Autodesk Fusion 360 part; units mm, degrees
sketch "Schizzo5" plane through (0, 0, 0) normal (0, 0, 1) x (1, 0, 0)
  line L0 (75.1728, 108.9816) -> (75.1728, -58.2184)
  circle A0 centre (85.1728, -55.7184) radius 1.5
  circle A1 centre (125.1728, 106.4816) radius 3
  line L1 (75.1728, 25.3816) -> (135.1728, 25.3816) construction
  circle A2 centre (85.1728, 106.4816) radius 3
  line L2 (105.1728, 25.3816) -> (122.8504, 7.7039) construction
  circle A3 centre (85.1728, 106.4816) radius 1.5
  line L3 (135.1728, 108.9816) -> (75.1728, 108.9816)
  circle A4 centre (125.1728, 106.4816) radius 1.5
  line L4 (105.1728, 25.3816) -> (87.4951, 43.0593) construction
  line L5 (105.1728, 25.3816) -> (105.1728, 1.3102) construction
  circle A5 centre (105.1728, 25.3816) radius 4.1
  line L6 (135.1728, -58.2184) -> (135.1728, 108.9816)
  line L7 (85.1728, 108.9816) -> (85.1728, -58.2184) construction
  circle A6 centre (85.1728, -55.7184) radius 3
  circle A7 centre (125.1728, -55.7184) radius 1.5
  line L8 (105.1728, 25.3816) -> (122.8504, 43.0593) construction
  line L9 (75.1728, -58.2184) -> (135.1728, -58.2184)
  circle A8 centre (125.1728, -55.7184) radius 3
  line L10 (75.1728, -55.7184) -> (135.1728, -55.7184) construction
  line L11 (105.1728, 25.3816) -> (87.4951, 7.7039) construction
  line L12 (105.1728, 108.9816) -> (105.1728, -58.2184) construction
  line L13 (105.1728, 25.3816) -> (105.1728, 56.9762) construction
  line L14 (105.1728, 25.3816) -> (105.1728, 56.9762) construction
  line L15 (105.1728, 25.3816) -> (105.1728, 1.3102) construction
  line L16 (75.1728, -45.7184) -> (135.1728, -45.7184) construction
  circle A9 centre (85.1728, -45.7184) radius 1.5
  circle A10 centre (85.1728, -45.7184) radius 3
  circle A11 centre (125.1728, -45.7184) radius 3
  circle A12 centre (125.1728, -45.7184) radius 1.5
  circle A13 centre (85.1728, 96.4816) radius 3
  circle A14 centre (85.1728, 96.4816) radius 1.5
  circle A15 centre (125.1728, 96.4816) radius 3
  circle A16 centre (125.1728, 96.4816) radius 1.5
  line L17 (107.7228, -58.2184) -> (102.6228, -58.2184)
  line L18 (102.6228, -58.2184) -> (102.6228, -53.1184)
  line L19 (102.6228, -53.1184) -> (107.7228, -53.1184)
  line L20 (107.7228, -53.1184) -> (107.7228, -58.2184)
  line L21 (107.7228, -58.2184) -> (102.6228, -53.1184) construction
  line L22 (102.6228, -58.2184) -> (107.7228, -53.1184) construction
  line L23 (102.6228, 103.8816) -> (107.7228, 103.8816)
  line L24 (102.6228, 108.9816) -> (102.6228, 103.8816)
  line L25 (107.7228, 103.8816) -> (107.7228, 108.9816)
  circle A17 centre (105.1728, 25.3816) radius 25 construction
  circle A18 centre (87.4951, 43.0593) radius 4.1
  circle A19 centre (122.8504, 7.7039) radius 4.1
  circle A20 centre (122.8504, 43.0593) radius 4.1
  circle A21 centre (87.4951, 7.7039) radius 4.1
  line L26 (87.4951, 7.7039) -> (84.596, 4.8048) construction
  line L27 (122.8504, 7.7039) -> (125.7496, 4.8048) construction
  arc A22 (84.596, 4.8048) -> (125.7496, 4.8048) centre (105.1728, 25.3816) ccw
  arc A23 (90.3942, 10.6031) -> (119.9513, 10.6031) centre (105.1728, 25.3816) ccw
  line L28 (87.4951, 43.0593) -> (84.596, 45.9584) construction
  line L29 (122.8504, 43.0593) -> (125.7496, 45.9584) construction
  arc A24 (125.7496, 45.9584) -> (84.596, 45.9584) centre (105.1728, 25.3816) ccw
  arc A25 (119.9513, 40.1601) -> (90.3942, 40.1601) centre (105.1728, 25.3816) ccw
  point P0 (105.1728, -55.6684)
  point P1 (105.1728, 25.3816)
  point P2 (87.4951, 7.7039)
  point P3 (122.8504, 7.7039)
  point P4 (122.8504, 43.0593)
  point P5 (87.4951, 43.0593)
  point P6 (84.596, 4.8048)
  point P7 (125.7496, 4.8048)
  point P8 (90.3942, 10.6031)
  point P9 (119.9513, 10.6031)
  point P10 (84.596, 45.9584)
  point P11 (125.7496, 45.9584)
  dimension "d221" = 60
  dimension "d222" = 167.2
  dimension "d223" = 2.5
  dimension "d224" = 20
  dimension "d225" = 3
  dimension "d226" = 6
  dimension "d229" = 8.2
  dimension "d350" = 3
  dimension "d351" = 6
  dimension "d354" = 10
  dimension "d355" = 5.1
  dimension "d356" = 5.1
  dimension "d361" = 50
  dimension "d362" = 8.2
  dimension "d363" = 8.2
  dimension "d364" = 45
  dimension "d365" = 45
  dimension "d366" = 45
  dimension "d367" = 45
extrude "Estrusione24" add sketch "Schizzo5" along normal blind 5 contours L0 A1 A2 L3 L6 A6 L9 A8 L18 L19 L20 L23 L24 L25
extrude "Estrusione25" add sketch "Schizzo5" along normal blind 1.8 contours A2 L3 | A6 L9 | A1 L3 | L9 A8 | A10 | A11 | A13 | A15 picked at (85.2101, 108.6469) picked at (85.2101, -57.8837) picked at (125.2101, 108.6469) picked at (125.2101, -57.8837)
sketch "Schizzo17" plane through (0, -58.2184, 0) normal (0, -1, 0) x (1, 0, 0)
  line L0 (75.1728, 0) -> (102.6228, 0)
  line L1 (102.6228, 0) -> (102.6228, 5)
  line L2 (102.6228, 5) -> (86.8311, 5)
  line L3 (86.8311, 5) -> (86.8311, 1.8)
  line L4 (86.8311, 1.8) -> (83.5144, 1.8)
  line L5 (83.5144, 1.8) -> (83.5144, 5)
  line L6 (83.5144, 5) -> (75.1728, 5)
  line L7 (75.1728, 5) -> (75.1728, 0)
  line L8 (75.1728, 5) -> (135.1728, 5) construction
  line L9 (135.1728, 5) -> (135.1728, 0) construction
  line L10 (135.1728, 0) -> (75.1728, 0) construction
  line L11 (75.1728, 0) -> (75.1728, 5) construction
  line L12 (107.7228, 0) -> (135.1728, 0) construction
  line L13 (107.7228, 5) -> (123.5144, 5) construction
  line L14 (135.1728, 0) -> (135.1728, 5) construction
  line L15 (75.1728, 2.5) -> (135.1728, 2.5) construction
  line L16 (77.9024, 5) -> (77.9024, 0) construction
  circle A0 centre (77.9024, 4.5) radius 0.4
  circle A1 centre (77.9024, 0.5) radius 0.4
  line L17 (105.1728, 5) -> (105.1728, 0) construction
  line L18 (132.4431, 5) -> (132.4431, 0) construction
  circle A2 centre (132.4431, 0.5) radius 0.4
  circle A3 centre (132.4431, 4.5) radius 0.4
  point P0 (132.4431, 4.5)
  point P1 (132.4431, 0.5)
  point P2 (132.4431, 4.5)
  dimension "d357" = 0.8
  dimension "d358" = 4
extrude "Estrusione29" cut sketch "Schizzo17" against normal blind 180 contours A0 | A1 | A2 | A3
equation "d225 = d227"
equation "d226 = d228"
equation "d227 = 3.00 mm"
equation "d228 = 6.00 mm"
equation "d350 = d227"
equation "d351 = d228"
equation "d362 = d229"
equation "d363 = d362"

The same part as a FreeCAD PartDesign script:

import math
import FreeCAD as App
import Part
import Sketcher

doc = App.newDocument("Part")
params = doc.addObject("Spreadsheet::Sheet", "Params")
for row, (alias, value) in enumerate([
    ("sketch1_diameter", "6 mm"),
    ("sketch1_diameter2", "8.2 mm"),
    ("sketch1_width", "5.1 mm"),
    ("sketch1_height", "167.2 mm"),
    ("sketch1_radius", "29.1 mm"),
    ("pad1_length", "5 mm"),
    ("sketch2_diameter", "3 mm"),
    ("sketch2_diameter2", "6 mm"),
    ("pad2_length", "1.8 mm"),
    ("sketch3_diameter", "0.8 mm"),
    ("pocket1_length", "180 mm"),
], start=1):
    params.set(f"A{row}", alias)
    params.set(f"B{row}", "=" + value)
    params.setAlias(f"B{row}", alias)

body = doc.addObject("PartDesign::Body", "Body")

sketch1 = body.newObject("Sketcher::SketchObject", "Sketch")
sketch1.AttachmentSupport = (doc.getObject("XY_Plane"), [""])
sketch1.MapMode = "FlatFace"
sketch1.addGeometry(Part.LineSegment(App.Vector(83.5, 109, 0), App.Vector(75.2, 109, 0)), False)
sketch1.addGeometry(Part.LineSegment(App.Vector(75.2, 109, 0), App.Vector(75.2, -58.2, 0)), False)
sketch1.addGeometry(Part.LineSegment(App.Vector(75.2, -58.2, 0), App.Vector(83.5, -58.2, 0)), False)
sketch1.addGeometry(Part.ArcOfCircle(Part.Circle(App.Vector(85.2, -55.7, 0), App.Vector(0, 0, 1), 3), math.radians(-56), math.radians(236)), False)
sketch1.addGeometry(Part.LineSegment(App.Vector(86.8, -58.2, 0), App.Vector(102.6, -58.2, 0)), False)
sketch1.addGeometry(Part.LineSegment(App.Vector(102.6, -58.2, 0), App.Vector(102.6, -53.1, 0)), False)
sketch1.addGeometry(Part.LineSegment(App.Vector(102.6, -53.1, 0), App.Vector(107.7, -53.1, 0)), False)
sketch1.addGeometry(Part.LineSegment(App.Vector(107.7, -53.1, 0), App.Vector(107.7, -58.2, 0)), False)
sketch1.addGeometry(Part.LineSegment(App.Vector(107.7, -58.2, 0), App.Vector(123.5, -58.2, 0)), False)
sketch1.addGeometry(Part.ArcOfCircle(Part.Circle(App.Vector(125.2, -55.7, 0), App.Vector(0, 0, 1), 3), math.radians(-56), math.radians(236)), False)
sketch1.addGeometry(Part.LineSegment(App.Vector(126.8, -58.2, 0), App.Vector(135.2, -58.2, 0)), False)
sketch1.addGeometry(Part.LineSegment(App.Vector(135.2, -58.2, 0), App.Vector(135.2, 109, 0)), False)
sketch1.addGeometry(Part.LineSegment(App.Vector(135.2, 109, 0), App.Vector(126.8, 109, 0)), False)
sketch1.addGeometry(Part.ArcOfCircle(Part.Circle(App.Vector(125.2, 106.5, 0), App.Vector(0, 0, 1), 3), math.radians(124), math.radians(416)), False)
sketch1.addGeometry(Part.LineSegment(App.Vector(123.5, 109, 0), App.Vector(107.7, 109, 0)), False)
sketch1.addGeometry(Part.LineSegment(App.Vector(107.7, 109, 0), App.Vector(107.7, 103.9, 0)), False)
sketch1.addGeometry(Part.LineSegment(App.Vector(107.7, 103.9, 0), App.Vector(102.6, 103.9, 0)), False)
sketch1.addGeometry(Part.LineSegment(App.Vector(102.6, 103.9, 0), App.Vector(102.6, 109, 0)), False)
sketch1.addGeometry(Part.LineSegment(App.Vector(102.6, 109, 0), App.Vector(86.8, 109, 0)), False)
sketch1.addGeometry(Part.ArcOfCircle(Part.Circle(App.Vector(85.2, 106.5, 0), App.Vector(0, 0, 1), 3), math.radians(124), math.radians(416)), False)
sketch1.addGeometry(Part.Circle(App.Vector(85.2, -45.7, 0), App.Vector(0, 0, 1), 3), False)
sketch1.addGeometry(Part.ArcOfCircle(Part.Circle(App.Vector(122.9, 7.7, 0), App.Vector(0, 0, 1), 4.1), math.radians(-45), math.radians(135)), False)
sketch1.addGeometry(Part.ArcOfCircle(Part.Circle(App.Vector(105.2, 25.4, 0), App.Vector(0, 0, 1), 29.1), math.radians(-135), math.radians(-45)), False)
sketch1.addGeometry(Part.ArcOfCircle(Part.Circle(App.Vector(87.5, 7.7, 0), App.Vector(0, 0, 1), 4.1), math.radians(45), math.radians(225)), False)
sketch1.addGeometry(Part.ArcOfCircle(Part.Circle(App.Vector(105.2, 25.4, 0), App.Vector(0, 0, 1), 20.9), math.radians(-135), math.radians(-45)), False)
sketch1.addGeometry(Part.Circle(App.Vector(125.2, -45.7, 0), App.Vector(0, 0, 1), 3), False)
sketch1.addGeometry(Part.ArcOfCircle(Part.Circle(App.Vector(87.5, 43.1, 0), App.Vector(0, 0, 1), 4.1), math.radians(135), math.radians(315)), False)
sketch1.addGeometry(Part.ArcOfCircle(Part.Circle(App.Vector(105.2, 25.4, 0), App.Vector(0, 0, 1), 29.1), math.radians(45), math.radians(135)), False)
sketch1.addGeometry(Part.ArcOfCircle(Part.Circle(App.Vector(122.9, 43.1, 0), App.Vector(0, 0, 1), 4.1), math.radians(-135), math.radians(45)), False)
sketch1.addGeometry(Part.ArcOfCircle(Part.Circle(App.Vector(105.2, 25.4, 0), App.Vector(0, 0, 1), 20.9), math.radians(45), math.radians(135)), False)
sketch1.addGeometry(Part.Circle(App.Vector(85.2, 96.5, 0), App.Vector(0, 0, 1), 3), False)
sketch1.addGeometry(Part.Circle(App.Vector(105.2, 25.4, 0), App.Vector(0, 0, 1), 4.1), False)
sketch1.addGeometry(Part.Circle(App.Vector(125.2, 96.5, 0), App.Vector(0, 0, 1), 3), False)
sketch1.addConstraint(Sketcher.Constraint("Coincident", 0, 2, 1, 1))
sketch1.addConstraint(Sketcher.Constraint("Coincident", 1, 2, 2, 1))
sketch1.addConstraint(Sketcher.Constraint("Coincident", 2, 2, 3, 2))
sketch1.addConstraint(Sketcher.Constraint("Coincident", 3, 1, 4, 1))
sketch1.addConstraint(Sketcher.Constraint("Coincident", 4, 2, 5, 1))
sketch1.addConstraint(Sketcher.Constraint("Coincident", 5, 2, 6, 1))
sketch1.addConstraint(Sketcher.Constraint("Coincident", 6, 2, 7, 1))
sketch1.addConstraint(Sketcher.Constraint("Coincident", 7, 2, 8, 1))
sketch1.addConstraint(Sketcher.Constraint("Coincident", 8, 2, 9, 2))
sketch1.addConstraint(Sketcher.Constraint("Coincident", 9, 1, 10, 1))
sketch1.addConstraint(Sketcher.Constraint("Coincident", 10, 2, 11, 1))
sketch1.addConstraint(Sketcher.Constraint("Coincident", 11, 2, 12, 1))
sketch1.addConstraint(Sketcher.Constraint("Coincident", 12, 2, 13, 2))
sketch1.addConstraint(Sketcher.Constraint("Coincident", 13, 1, 14, 1))
sketch1.addConstraint(Sketcher.Constraint("Coincident", 14, 2, 15, 1))
sketch1.addConstraint(Sketcher.Constraint("Coincident", 15, 2, 16, 1))
sketch1.addConstraint(Sketcher.Constraint("Coincident", 16, 2, 17, 1))
sketch1.addConstraint(Sketcher.Constraint("Coincident", 17, 2, 18, 1))
sketch1.addConstraint(Sketcher.Constraint("Coincident", 18, 2, 19, 2))
sketch1.addConstraint(Sketcher.Constraint("Coincident", 19, 1, 0, 1))
sketch1.addConstraint(Sketcher.Constraint("Tangent", 21, 1, 22, 2))
sketch1.addConstraint(Sketcher.Constraint("Tangent", 22, 1, 23, 2))
sketch1.addConstraint(Sketcher.Constraint("Tangent", 23, 1, 24, 1))
sketch1.addConstraint(Sketcher.Constraint("Tangent", 24, 2, 21, 2))
sketch1.addConstraint(Sketcher.Constraint("Tangent", 26, 1, 27, 2))
sketch1.addConstraint(Sketcher.Constraint("Tangent", 27, 1, 28, 2))
sketch1.addConstraint(Sketcher.Constraint("Tangent", 28, 1, 29, 1))
sketch1.addConstraint(Sketcher.Constraint("Tangent", 29, 2, 26, 2))
sketch1.addConstraint(Sketcher.Constraint("Horizontal", 0))
sketch1.addConstraint(Sketcher.Constraint("Vertical", 1))
sketch1.addConstraint(Sketcher.Constraint("Horizontal", 2))
sketch1.addConstraint(Sketcher.Constraint("Horizontal", 4))
sketch1.addConstraint(Sketcher.Constraint("Vertical", 5))
sketch1.addConstraint(Sketcher.Constraint("Horizontal", 6))
sketch1.addConstraint(Sketcher.Constraint("Vertical", 7))
sketch1.addConstraint(Sketcher.Constraint("Horizontal", 8))
sketch1.addConstraint(Sketcher.Constraint("Horizontal", 10))
sketch1.addConstraint(Sketcher.Constraint("Vertical", 11))
sketch1.addConstraint(Sketcher.Constraint("Horizontal", 12))
sketch1.addConstraint(Sketcher.Constraint("Horizontal", 14))
sketch1.addConstraint(Sketcher.Constraint("Vertical", 15))
sketch1.addConstraint(Sketcher.Constraint("Horizontal", 16))
sketch1.addConstraint(Sketcher.Constraint("Vertical", 17))
sketch1.addConstraint(Sketcher.Constraint("Horizontal", 18))
sketch1.addConstraint(Sketcher.Constraint("Coincident", 24, 3, 22, 3))
sketch1.addConstraint(Sketcher.Constraint("Coincident", 27, 3, 22, 3))
sketch1.addConstraint(Sketcher.Constraint("Coincident", 29, 3, 22, 3))
sketch1.addConstraint(Sketcher.Constraint("Coincident", 31, 3, 22, 3))
sketch1.addConstraint(Sketcher.Constraint("Equal", 3, 9))
sketch1.addConstraint(Sketcher.Constraint("Equal", 9, 13))
sketch1.addConstraint(Sketcher.Constraint("Equal", 13, 19))
sketch1.addConstraint(Sketcher.Constraint("Equal", 19, 20))
sketch1.addConstraint(Sketcher.Constraint("Equal", 20, 25))
sketch1.addConstraint(Sketcher.Constraint("Equal", 23, 26))
sketch1.addConstraint(Sketcher.Constraint("Equal", 22, 27))
sketch1.addConstraint(Sketcher.Constraint("Equal", 25, 30))
sketch1.addConstraint(Sketcher.Constraint("Equal", 28, 31))
sketch1.addConstraint(Sketcher.Constraint("Equal", 30, 32))
sketch1.addConstraint(Sketcher.Constraint("Horizontal", 3, 3, 9, 3))
sketch1.addConstraint(Sketcher.Constraint("Horizontal", 13, 3, 19, 3))
sketch1.addConstraint(Sketcher.Constraint("Horizontal", 21, 3, 23, 3))
sketch1.addConstraint(Sketcher.Constraint("Horizontal", 20, 3, 25, 3))
sketch1.addConstraint(Sketcher.Constraint("Horizontal", 26, 3, 28, 3))
sketch1.addConstraint(Sketcher.Constraint("Horizontal", 30, 3, 32, 3))
sketch1.addConstraint(Sketcher.Constraint("Horizontal", 2, 2, 3, 1))
sketch1.addConstraint(Sketcher.Constraint("Horizontal", 4, 2, 7, 2))
sketch1.addConstraint(Sketcher.Constraint("Horizontal", 8, 2, 9, 1))
sketch1.addConstraint(Sketcher.Constraint("Horizontal", 0, 2, 11, 2))
sketch1.addConstraint(Sketcher.Constraint("Horizontal", 12, 2, 13, 1))
sketch1.addConstraint(Sketcher.Constraint("Horizontal", 14, 2, 17, 2))
sketch1.addConstraint(Sketcher.Constraint("Vertical", 9, 3, 13, 3))
sketch1.addConstraint(Sketcher.Constraint("Vertical", 3, 3, 19, 3))
sketch1.addConstraint(Sketcher.Constraint("Vertical", 19, 3, 20, 3))
sketch1.addConstraint(Sketcher.Constraint("Vertical", 13, 3, 25, 3))
sketch1.addConstraint(Sketcher.Constraint("Vertical", 23, 3, 26, 3))
sketch1.addConstraint(Sketcher.Constraint("Vertical", 20, 3, 30, 3))
sketch1.addConstraint(Sketcher.Constraint("Vertical", 25, 3, 32, 3))
sketch1.addConstraint(Sketcher.Constraint("Vertical", 9, 1, 12, 2))
sketch1.addConstraint(Sketcher.Constraint("Vertical", 7, 2, 14, 2))
sketch1.addConstraint(Sketcher.Constraint("Vertical", 5, 2, 16, 2))
sketch1.addConstraint(Sketcher.Constraint("Equal", 4, 8))
sketch1.addConstraint(Sketcher.Constraint("Equal", 2, 10))
sketch1.addConstraint(Sketcher.Constraint("Equal", 16, 5))
sketch1.addConstraint(Sketcher.Constraint("Equal", 7, 15))
sketch1.addConstraint(Sketcher.Constraint("Diameter", 20, 6.0))
sketch1.addConstraint(Sketcher.Constraint("Diameter", 31, 8.2))
sketch1.addConstraint(Sketcher.Constraint("DistanceX", 6, 1, 6, 2, 5.1))
sketch1.addConstraint(Sketcher.Constraint("DistanceY", 1, 2, 1, 1, 167.2))
sketch1.addConstraint(Sketcher.Constraint("DistanceY", 3, 3, 20, 3, 10.0))
sketch1.addConstraint(Sketcher.Constraint("DistanceX", 20, 3, 22, 3, 20.0))
sketch1.addConstraint(Sketcher.Constraint("DistanceX", 22, 3, 9, 3, 20.0))
sketch1.addConstraint(Sketcher.Constraint("DistanceY", 30, 3, 19, 3, 10.0))
sketch1.addConstraint(Sketcher.Constraint("DistanceX", 0, 2, 19, 3, 10.0))
sketch1.addConstraint(Sketcher.Constraint("Radius", 22, 29.1))
sketch1.addConstraint(Sketcher.Constraint("DistanceY", 19, 3, 0, 2, 2.5))
sketch1.addConstraint(Sketcher.Constraint("DistanceY", 20, 3, 22, 3, 71.1))
sketch1.addConstraint(Sketcher.Constraint("DistanceY", -1, 1, 28, 1, 40.16))
sketch1.addConstraint(Sketcher.Constraint("DistanceY", -1, 1, 21, 3, 7.704))
sketch1.addConstraint(Sketcher.Constraint("DistanceX", -1, 1, 23, 3, 87.495))
sketch1.setExpression("Constraints[84]", "Params.sketch1_diameter")
sketch1.setExpression("Constraints[85]", "Params.sketch1_diameter2")
sketch1.setExpression("Constraints[86]", "Params.sketch1_width")
sketch1.setExpression("Constraints[87]", "Params.sketch1_height")
sketch1.setExpression("Constraints[93]", "Params.sketch1_radius")
pad1 = body.newObject("PartDesign::Pad", "Pad")
pad1.Profile = sketch1
pad1.setExpression("Length", "Params.pad1_length")

sketch2 = body.newObject("Sketcher::SketchObject", "Sketch001")
sketch2.AttachmentSupport = (doc.getObject("XY_Plane"), [""])
sketch2.MapMode = "FlatFace"
sketch2.addGeometry(Part.LineSegment(App.Vector(86.8, 109, 0), App.Vector(83.5, 109, 0)), False)
sketch2.addGeometry(Part.ArcOfCircle(Part.Circle(App.Vector(85.2, 106.5, 0), App.Vector(0, 0, 1), 3), math.radians(124), math.radians(416)), False)
sketch2.addGeometry(Part.Circle(App.Vector(85.2, 106.5, 0), App.Vector(0, 0, 1), 1.5), False)
sketch2.addGeometry(Part.ArcOfCircle(Part.Circle(App.Vector(85.2, -55.7, 0), App.Vector(0, 0, 1), 3), math.radians(-56), math.radians(236)), False)
sketch2.addGeometry(Part.LineSegment(App.Vector(83.5, -58.2, 0), App.Vector(86.8, -58.2, 0)), False)
sketch2.addGeometry(Part.Circle(App.Vector(85.2, -55.7, 0), App.Vector(0, 0, 1), 1.5), False)
sketch2.addGeometry(Part.LineSegment(App.Vector(126.8, 109, 0), App.Vector(123.5, 109, 0)), False)
sketch2.addGeometry(Part.ArcOfCircle(Part.Circle(App.Vector(125.2, 106.5, 0), App.Vector(0, 0, 1), 3), math.radians(124), math.radians(416)), False)
sketch2.addGeometry(Part.Circle(App.Vector(125.2, 106.5, 0), App.Vector(0, 0, 1), 1.5), False)
sketch2.addGeometry(Part.ArcOfCircle(Part.Circle(App.Vector(125.2, -55.7, 0), App.Vector(0, 0, 1), 3), math.radians(-56), math.radians(236)), False)
sketch2.addGeometry(Part.LineSegment(App.Vector(123.5, -58.2, 0), App.Vector(126.8, -58.2, 0)), False)
sketch2.addGeometry(Part.Circle(App.Vector(125.2, -55.7, 0), App.Vector(0, 0, 1), 1.5), False)
sketch2.addGeometry(Part.Circle(App.Vector(85.2, -45.7, 0), App.Vector(0, 0, 1), 3), False)
sketch2.addGeometry(Part.Circle(App.Vector(85.2, -45.7, 0), App.Vector(0, 0, 1), 1.5), False)
sketch2.addGeometry(Part.Circle(App.Vector(125.2, -45.7, 0), App.Vector(0, 0, 1), 3), False)
sketch2.addGeometry(Part.Circle(App.Vector(125.2, -45.7, 0), App.Vector(0, 0, 1), 1.5), False)
sketch2.addGeometry(Part.Circle(App.Vector(85.2, 96.5, 0), App.Vector(0, 0, 1), 3), False)
sketch2.addGeometry(Part.Circle(App.Vector(85.2, 96.5, 0), App.Vector(0, 0, 1), 1.5), False)
sketch2.addGeometry(Part.Circle(App.Vector(125.2, 96.5, 0), App.Vector(0, 0, 1), 3), False)
sketch2.addGeometry(Part.Circle(App.Vector(125.2, 96.5, 0), App.Vector(0, 0, 1), 1.5), False)
sketch2.addConstraint(Sketcher.Constraint("Coincident", 0, 1, 1, 2))
sketch2.addConstraint(Sketcher.Constraint("Coincident", 1, 1, 0, 2))
sketch2.addConstraint(Sketcher.Constraint("Coincident", 3, 1, 4, 2))
sketch2.addConstraint(Sketcher.Constraint("Coincident", 4, 1, 3, 2))
sketch2.addConstraint(Sketcher.Constraint("Coincident", 6, 1, 7, 2))
sketch2.addConstraint(Sketcher.Constraint("Coincident", 7, 1, 6, 2))
sketch2.addConstraint(Sketcher.Constraint("Coincident", 9, 1, 10, 2))
sketch2.addConstraint(Sketcher.Constraint("Coincident", 10, 1, 9, 2))
sketch2.addConstraint(Sketcher.Constraint("Horizontal", 0))
sketch2.addConstraint(Sketcher.Constraint("Horizontal", 4))
sketch2.addConstraint(Sketcher.Constraint("Horizontal", 6))
sketch2.addConstraint(Sketcher.Constraint("Horizontal", 10))
sketch2.addConstraint(Sketcher.Constraint("Coincident", 2, 3, 1, 3))
sketch2.addConstraint(Sketcher.Constraint("Coincident", 5, 3, 3, 3))
sketch2.addConstraint(Sketcher.Constraint("Coincident", 8, 3, 7, 3))
sketch2.addConstraint(Sketcher.Constraint("Coincident", 11, 3, 9, 3))
sketch2.addConstraint(Sketcher.Constraint("Coincident", 13, 3, 12, 3))
sketch2.addConstraint(Sketcher.Constraint("Coincident", 15, 3, 14, 3))
sketch2.addConstraint(Sketcher.Constraint("Coincident", 17, 3, 16, 3))
sketch2.addConstraint(Sketcher.Constraint("Coincident", 19, 3, 18, 3))
sketch2.addConstraint(Sketcher.Constraint("Equal", 1, 3))
sketch2.addConstraint(Sketcher.Constraint("Equal", 2, 5))
sketch2.addConstraint(Sketcher.Constraint("Equal", 3, 7))
sketch2.addConstraint(Sketcher.Constraint("Equal", 5, 8))
sketch2.addConstraint(Sketcher.Constraint("Equal", 7, 9))
sketch2.addConstraint(Sketcher.Constraint("Equal", 8, 11))
sketch2.addConstraint(Sketcher.Constraint("Equal", 9, 12))
sketch2.addConstraint(Sketcher.Constraint("Equal", 11, 13))
sketch2.addConstraint(Sketcher.Constraint("Equal", 12, 14))
sketch2.addConstraint(Sketcher.Constraint("Equal", 13, 15))
sketch2.addConstraint(Sketcher.Constraint("Equal", 14, 16))
sketch2.addConstraint(Sketcher.Constraint("Equal", 15, 17))
sketch2.addConstraint(Sketcher.Constraint("Equal", 16, 18))
sketch2.addConstraint(Sketcher.Constraint("Equal", 17, 19))
sketch2.addConstraint(Sketcher.Constraint("Horizontal", 2, 3, 7, 3))
sketch2.addConstraint(Sketcher.Constraint("Horizontal", 5, 3, 9, 3))
sketch2.addConstraint(Sketcher.Constraint("Horizontal", 13, 3, 14, 3))
sketch2.addConstraint(Sketcher.Constraint("Horizontal", 17, 3, 18, 3))
sketch2.addConstraint(Sketcher.Constraint("Horizontal", 1, 1, 6, 1))
sketch2.addConstraint(Sketcher.Constraint("Horizontal", 4, 1, 9, 1))
sketch2.addConstraint(Sketcher.Constraint("Vertical", 2, 3, 3, 3))
sketch2.addConstraint(Sketcher.Constraint("Vertical", 8, 3, 9, 3))
sketch2.addConstraint(Sketcher.Constraint("Vertical", 5, 3, 12, 3))
sketch2.addConstraint(Sketcher.Constraint("Vertical", 11, 3, 14, 3))
sketch2.addConstraint(Sketcher.Constraint("Vertical", 13, 3, 16, 3))
sketch2.addConstraint(Sketcher.Constraint("Vertical", 15, 3, 18, 3))
sketch2.addConstraint(Sketcher.Constraint("Vertical", 0, 1, 3, 1))
sketch2.addConstraint(Sketcher.Constraint("Diameter", 2, 3.0))
sketch2.addConstraint(Sketcher.Constraint("Diameter", 12, 6.0))
sketch2.addConstraint(Sketcher.Constraint("DistanceY", 3, 3, 12, 3, 10.0))
sketch2.addConstraint(Sketcher.Constraint("DistanceY", 16, 3, 1, 3, 10.0))
sketch2.addConstraint(Sketcher.Constraint("DistanceY", 1, 3, 0, 1, 2.5))
sketch2.addConstraint(Sketcher.Constraint("DistanceX", 1, 3, 7, 3, 40.0))
sketch2.addConstraint(Sketcher.Constraint("DistanceY", 3, 3, 1, 3, 162.2))
sketch2.addConstraint(Sketcher.Constraint("DistanceX", -1, 1, 0, 1, 86.831))
sketch2.addConstraint(Sketcher.Constraint("DistanceY", -1, 1, 1, 3, 106.4816))
sketch2.setExpression("Constraints[47]", "Params.sketch2_diameter")
sketch2.setExpression("Constraints[48]", "Params.sketch2_diameter2")
pad2 = body.newObject("PartDesign::Pad", "Pad001")
pad2.Profile = sketch2
pad2.setExpression("Length", "Params.pad2_length")

sketch3 = body.newObject("Sketcher::SketchObject", "Sketch002")
sketch3.AttachmentSupport = (doc.getObject("XZ_Plane"), [""])
sketch3.MapMode = "FlatFace"
sketch3.AttachmentOffset = App.Placement(App.Vector(0, 0, 58.2184), App.Rotation())
sketch3.addGeometry(Part.Circle(App.Vector(77.9, 4.5, 0), App.Vector(0, 0, 1), 0.4), False)
sketch3.addGeometry(Part.Circle(App.Vector(77.9, 0.5, 0), App.Vector(0, 0, 1), 0.4), False)
sketch3.addGeometry(Part.Circle(App.Vector(132.44, 0.5, 0), App.Vector(0, 0, 1), 0.4), False)
sketch3.addGeometry(Part.Circle(App.Vector(132.44, 4.5, 0), App.Vector(0, 0, 1), 0.4), False)
sketch3.addConstraint(Sketcher.Constraint("Equal", 0, 1))
sketch3.addConstraint(Sketcher.Constraint("Equal", 1, 2))
sketch3.addConstraint(Sketcher.Constraint("Equal", 2, 3))
sketch3.addConstraint(Sketcher.Constraint("Horizontal", 1, 3, 2, 3))
sketch3.addConstraint(Sketcher.Constraint("Horizontal", 0, 3, 3, 3))
sketch3.addConstraint(Sketcher.Constraint("Vertical", 0, 3, 1, 3))
sketch3.addConstraint(Sketcher.Constraint("Vertical", 2, 3, 3, 3))
sketch3.addConstraint(Sketcher.Constraint("Diameter", 0, 0.8))
sketch3.addConstraint(Sketcher.Constraint("DistanceY", 1, 3, 0, 3, 4.0))
sketch3.addConstraint(Sketcher.Constraint("DistanceY", -1, 1, 0, 3, 4.5))
sketch3.addConstraint(Sketcher.Constraint("DistanceX", -1, 1, 2, 3, 132.443))
sketch3.addConstraint(Sketcher.Constraint("DistanceX", -1, 1, 0, 3, 77.9024))
sketch3.setExpression("Constraints[7]", "Params.sketch3_diameter")
pocket1 = body.newObject("PartDesign::Pocket", "Pocket")
pocket1.Profile = sketch3
pocket1.setExpression("Length", "Params.pocket1_length")

doc.recompute()
